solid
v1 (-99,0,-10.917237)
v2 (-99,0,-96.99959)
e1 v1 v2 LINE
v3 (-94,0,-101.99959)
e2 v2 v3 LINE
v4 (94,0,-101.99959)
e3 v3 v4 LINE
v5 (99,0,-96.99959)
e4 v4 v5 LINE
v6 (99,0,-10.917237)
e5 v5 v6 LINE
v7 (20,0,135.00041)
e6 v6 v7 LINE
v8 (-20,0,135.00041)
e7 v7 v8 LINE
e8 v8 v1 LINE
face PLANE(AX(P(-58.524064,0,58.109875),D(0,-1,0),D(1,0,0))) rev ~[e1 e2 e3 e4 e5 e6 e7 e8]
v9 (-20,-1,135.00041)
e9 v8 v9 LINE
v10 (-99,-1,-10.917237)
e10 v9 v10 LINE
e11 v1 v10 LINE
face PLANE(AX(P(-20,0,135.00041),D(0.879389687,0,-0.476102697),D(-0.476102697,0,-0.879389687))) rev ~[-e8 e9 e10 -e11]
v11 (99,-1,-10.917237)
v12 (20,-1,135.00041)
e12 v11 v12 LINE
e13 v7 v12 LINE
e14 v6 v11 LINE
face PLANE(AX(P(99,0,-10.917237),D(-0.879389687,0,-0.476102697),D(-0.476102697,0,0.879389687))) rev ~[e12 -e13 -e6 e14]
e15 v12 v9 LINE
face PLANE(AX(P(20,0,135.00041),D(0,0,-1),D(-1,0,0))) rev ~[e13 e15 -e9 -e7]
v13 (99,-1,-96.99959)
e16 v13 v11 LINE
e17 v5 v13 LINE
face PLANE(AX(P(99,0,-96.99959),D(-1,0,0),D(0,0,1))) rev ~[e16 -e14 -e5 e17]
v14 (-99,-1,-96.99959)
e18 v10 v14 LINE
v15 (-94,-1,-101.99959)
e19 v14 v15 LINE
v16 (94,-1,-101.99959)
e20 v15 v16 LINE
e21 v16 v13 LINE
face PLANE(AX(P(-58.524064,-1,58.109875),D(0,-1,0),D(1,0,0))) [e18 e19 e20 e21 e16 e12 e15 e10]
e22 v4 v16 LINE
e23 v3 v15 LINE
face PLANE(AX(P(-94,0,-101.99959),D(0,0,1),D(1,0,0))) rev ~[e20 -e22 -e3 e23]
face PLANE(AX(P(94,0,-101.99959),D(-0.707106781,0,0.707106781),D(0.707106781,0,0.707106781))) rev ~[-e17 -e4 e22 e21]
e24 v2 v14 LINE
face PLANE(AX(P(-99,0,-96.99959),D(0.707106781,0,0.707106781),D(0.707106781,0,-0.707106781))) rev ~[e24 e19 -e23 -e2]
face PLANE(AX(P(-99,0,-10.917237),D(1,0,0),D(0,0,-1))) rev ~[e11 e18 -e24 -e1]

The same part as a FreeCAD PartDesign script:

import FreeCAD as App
import Part
import Sketcher

V = App.Vector
Q = App.Units.Quantity


def add_polygon(sketch, points):
    """Adds a closed chain of lines whose ends are joined by coincident constraints."""
    first, n = sketch.GeometryCount, len(points)
    for a, b in zip(points, points[1:] + points[:1]):
        sketch.addGeometry(Part.LineSegment(App.Vector(*a, 0), App.Vector(*b, 0)), False)
    for i in range(n):
        sketch.addConstraint(Sketcher.Constraint("Coincident", first + i, 2, first + (i + 1) % n, 1))

doc = App.newDocument("Part")
body = doc.addObject("PartDesign::Body", "Body")

sketch1 = body.newObject("Sketcher::SketchObject", "Sketch")
sketch1.AttachmentSupport = (doc.getObject("XZ_Plane"), [""])
sketch1.MapMode = "FlatFace"
add_polygon(sketch1, [(-99, -10.917237), (-99, -96.99959), (-94, -101.99959), (94, -101.99959), (99, -96.99959), (99, -10.917237), (20, 135.00041), (-20, 135.00041)])
sketch1.addConstraint([
    Sketcher.Constraint("Vertical", 0),
    Sketcher.Constraint("Horizontal", 2),
    Sketcher.Constraint("Vertical", 4),
    Sketcher.Constraint("Horizontal", 6),
    Sketcher.Constraint("Symmetric", 0, 2, 3, 2, -2),
    Sketcher.Constraint("Perpendicular", 1, 3),
    Sketcher.Constraint("Horizontal", 4, 2, 7, 2),
    Sketcher.Constraint("Equal", 1, 3),
    Sketcher.Constraint("Equal", 5, 7),
    Sketcher.Constraint("DistanceX", 2, 1, 2, 2, Q("188 mm")),
    Sketcher.Constraint("DistanceX", 6, 2, 6, 1, Q("40 mm")),
    Sketcher.Constraint("DistanceX", 0, 2, -1, 1, Q("99 mm")),
    Sketcher.Constraint("DistanceY", 3, 2, 5, 2, Q("232 mm")),
    Sketcher.Constraint("DistanceY", 0, 2, 0, 1, Q("86.082353 mm")),
    Sketcher.Constraint("DistanceY", 0, 2, -1, 1, Q("96.99959 mm")),
])
pad1 = body.newObject("PartDesign::Pad", "Pad")
pad1.Profile = sketch1
pad1.Length = 1

doc.recompute()
